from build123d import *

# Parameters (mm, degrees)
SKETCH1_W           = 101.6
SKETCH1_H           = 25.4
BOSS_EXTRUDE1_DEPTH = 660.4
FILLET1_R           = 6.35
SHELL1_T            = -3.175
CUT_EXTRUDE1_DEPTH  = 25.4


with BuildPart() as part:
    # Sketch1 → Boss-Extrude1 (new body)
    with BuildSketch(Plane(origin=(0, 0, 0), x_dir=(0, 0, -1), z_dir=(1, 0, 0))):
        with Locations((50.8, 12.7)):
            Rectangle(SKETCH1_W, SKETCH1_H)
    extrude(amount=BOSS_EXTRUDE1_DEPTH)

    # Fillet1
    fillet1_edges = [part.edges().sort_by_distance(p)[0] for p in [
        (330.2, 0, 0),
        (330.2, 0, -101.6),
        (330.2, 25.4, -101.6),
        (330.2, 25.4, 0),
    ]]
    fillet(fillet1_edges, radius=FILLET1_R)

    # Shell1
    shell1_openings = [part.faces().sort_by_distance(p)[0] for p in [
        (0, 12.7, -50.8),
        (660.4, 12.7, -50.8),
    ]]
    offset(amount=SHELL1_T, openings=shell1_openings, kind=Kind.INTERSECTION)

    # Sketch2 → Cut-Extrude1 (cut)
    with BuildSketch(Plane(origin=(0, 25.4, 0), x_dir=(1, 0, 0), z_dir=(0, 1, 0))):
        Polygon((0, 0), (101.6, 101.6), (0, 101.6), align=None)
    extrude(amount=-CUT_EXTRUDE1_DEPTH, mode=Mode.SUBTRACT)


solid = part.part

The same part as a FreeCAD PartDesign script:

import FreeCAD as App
import Part
import Sketcher
Q = App.Units.Quantity


def edges_at(feature, points):
    """Names of the edges that pass closest to the given points."""
    edges = feature.Shape.Edges
    near = lambda p: min(range(len(edges)), key=lambda i: edges[i].distToShape(Part.Vertex(*p))[0])
    return sorted({f"Edge{near(p) + 1}" for p in points})


def faces_at(feature, points):
    """Names of the faces that lie closest to the given points."""
    faces = feature.Shape.Faces
    near = lambda p: min(range(len(faces)), key=lambda i: faces[i].distToShape(Part.Vertex(*p))[0])
    return sorted({f"Face{near(p) + 1}" for p in points})

doc = App.newDocument("Part")
body = doc.addObject("PartDesign::Body", "Body")

# Sketch on YZ plane
sketch1 = body.newObject("Sketcher::SketchObject", "Sketch")
sketch1.AttachmentSupport = (doc.getObject("YZ_Plane"), [""])
sketch1.MapMode = "FlatFace"
sketch1.addGeometry([
    Part.LineSegment(App.Vector(25, 0, 0), App.Vector(0, 0, 0)),
    Part.LineSegment(App.Vector(0, 0, 0), App.Vector(0, -102, 0)),
    Part.LineSegment(App.Vector(0, -102, 0), App.Vector(25, -102, 0)),
    Part.LineSegment(App.Vector(25, -102, 0), App.Vector(25, 0, 0)),
], False)
sketch1.addConstraint([
    Sketcher.Constraint("Coincident", 0, 2, 1, 1),
    Sketcher.Constraint("Coincident", 1, 2, 2, 1),
    Sketcher.Constraint("Coincident", 2, 2, 3, 1),
    Sketcher.Constraint("Coincident", 3, 2, 0, 1),
    Sketcher.Constraint("Horizontal", 0),
    Sketcher.Constraint("Vertical", 1),
    Sketcher.Constraint("Horizontal", 2),
    Sketcher.Constraint("Vertical", 3),
    Sketcher.Constraint("Coincident", 0, 2, -1, 1),
    Sketcher.Constraint("DistanceX", 0, 2, 0, 1, Q("1 in")),
    Sketcher.Constraint("DistanceY", 1, 2, 1, 1, Q("4 in")),
])
pad1 = body.newObject("PartDesign::Pad", "Pad")
pad1.Profile = sketch1
pad1.Length = Q("26 in")
doc.recompute()

fillet = body.newObject("PartDesign::Fillet", "Fillet")
fillet.Base = (pad1, edges_at(pad1, [
    (330.2, 0, 0),
    (330.2, 0, -101.6),
    (330.2, 25.4, -101.6),
    (330.2, 25.4, 0),
]))
fillet.Radius = Q("0.25 in")
doc.recompute()

thickness = body.newObject("PartDesign::Thickness", "Thickness")
thickness.Base = (fillet, faces_at(fillet, [(0, 12.7, -50.8), (660.4, 12.7, -50.8)]))
thickness.Value = Q("0.125 in")
thickness.Reversed = True
thickness.Join = "Intersection"

# Sketch on XZ plane
sketch2 = body.newObject("Sketcher::SketchObject", "Sketch001")
sketch2.AttachmentSupport = (doc.getObject("XZ_Plane"), [""])
sketch2.MapMode = "FlatFace"
sketch2.AttachmentOffset = App.Placement(App.Vector(0, 0, -1 * 25.4), App.Rotation())
sketch2.addGeometry([
    Part.LineSegment(App.Vector(0, 0, 0), App.Vector(102, -102, 0)),
    Part.LineSegment(App.Vector(102, -102, 0), App.Vector(0, -102, 0)),
    Part.LineSegment(App.Vector(0, -102, 0), App.Vector(0, 0, 0)),
], False)
sketch2.addConstraint([
    Sketcher.Constraint("Coincident", 0, 2, 1, 1),
    Sketcher.Constraint("Coincident", 1, 2, 2, 1),
    Sketcher.Constraint("Coincident", 2, 2, 0, 1),
    Sketcher.Constraint("Horizontal", 1),
    Sketcher.Constraint("Vertical", 2),
    Sketcher.Constraint("Coincident", 2, 2, -1, 1),
    Sketcher.Constraint("Equal", 1, 2),
    Sketcher.Constraint("DistanceX", 1, 2, 1, 1, Q("4 in")),
])
pocket1 = body.newObject("PartDesign::Pocket", "Pocket")
pocket1.Profile = sketch2
pocket1.Length = Q("1 in")
pocket1.Reversed = True

doc.recompute()
